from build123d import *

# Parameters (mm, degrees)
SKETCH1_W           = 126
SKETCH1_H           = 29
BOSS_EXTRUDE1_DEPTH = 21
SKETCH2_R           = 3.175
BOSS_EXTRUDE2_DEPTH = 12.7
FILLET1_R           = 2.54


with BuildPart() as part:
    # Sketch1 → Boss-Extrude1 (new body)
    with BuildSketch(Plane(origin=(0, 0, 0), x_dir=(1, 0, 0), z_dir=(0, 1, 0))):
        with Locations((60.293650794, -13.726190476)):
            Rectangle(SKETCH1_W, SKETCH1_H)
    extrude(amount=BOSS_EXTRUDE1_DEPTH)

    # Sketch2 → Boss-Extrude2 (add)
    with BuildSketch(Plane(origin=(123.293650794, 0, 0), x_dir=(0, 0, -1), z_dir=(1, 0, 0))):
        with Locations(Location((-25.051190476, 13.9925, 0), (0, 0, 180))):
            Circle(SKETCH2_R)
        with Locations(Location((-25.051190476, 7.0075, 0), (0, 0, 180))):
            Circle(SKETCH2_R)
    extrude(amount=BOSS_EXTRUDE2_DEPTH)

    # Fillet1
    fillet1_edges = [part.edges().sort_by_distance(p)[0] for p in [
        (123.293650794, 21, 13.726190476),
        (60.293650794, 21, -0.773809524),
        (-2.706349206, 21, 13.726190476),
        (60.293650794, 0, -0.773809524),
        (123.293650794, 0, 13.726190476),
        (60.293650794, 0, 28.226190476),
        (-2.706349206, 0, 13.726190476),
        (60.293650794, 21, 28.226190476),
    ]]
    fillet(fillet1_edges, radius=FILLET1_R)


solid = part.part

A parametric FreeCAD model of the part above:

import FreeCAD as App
import Part
import Sketcher


def edges_at(feature, points):
    """Names of the edges that pass closest to the given points."""
    edges = feature.Shape.Edges
    near = lambda p: min(range(len(edges)), key=lambda i: edges[i].distToShape(Part.Vertex(*p))[0])
    return sorted({f"Edge{near(p) + 1}" for p in points})


def add_polygon(sketch, points):
    """Adds a closed chain of lines whose ends are joined by coincident constraints."""
    first, n = sketch.GeometryCount, len(points)
    for a, b in zip(points, points[1:] + points[:1]):
        sketch.addGeometry(Part.LineSegment(App.Vector(*a, 0), App.Vector(*b, 0)), False)
    for i in range(n):
        sketch.addConstraint(Sketcher.Constraint("Coincident", first + i, 2, first + (i + 1) % n, 1))

doc = App.newDocument("Part")
params = doc.addObject("Spreadsheet::Sheet", "Params")
for row, (alias, value) in enumerate([
    ("sketch1_width", "126 mm"),
    ("sketch1_height", "29 mm"),
    ("pad1_length", "21 mm"),
    ("sketch2_diameter", "6.35 mm"),
    ("pad2_length", "12.7 mm"),
    ("fillet_radius", "2.54 mm"),
], start=1):
    params.set(f"A{row}", alias)
    params.set(f"B{row}", "=" + value)
    params.setAlias(f"B{row}", alias)

body = doc.addObject("PartDesign::Body", "Body")

sketch1 = body.newObject("Sketcher::SketchObject", "Sketch")
sketch1.AttachmentSupport = (doc.getObject("XZ_Plane"), [""])
sketch1.MapMode = "FlatFace"
add_polygon(sketch1, [(-3, -1), (-3, 28), (123, 28), (123, -1)])
sketch1.addConstraint([
    Sketcher.Constraint("Vertical", 0),
    Sketcher.Constraint("Horizontal", 1),
    Sketcher.Constraint("Vertical", 2),
    Sketcher.Constraint("Horizontal", 3),
    Sketcher.Constraint("DistanceX", 1, 1, 1, 2, 126.0),
    Sketcher.Constraint("DistanceY", 0, 1, 0, 2, 29.0),
    Sketcher.Constraint("DistanceX", 0, 2, -1, 1, 2.706349),
    Sketcher.Constraint("DistanceY", -1, 1, 0, 2, 28.22619),
])
sketch1.setExpression("Constraints[8]", "Params.sketch1_width")
sketch1.setExpression("Constraints[9]", "Params.sketch1_height")
pad1 = body.newObject("PartDesign::Pad", "Pad")
pad1.Profile = sketch1
pad1.setExpression("Length", "Params.pad1_length")
pad1.Reversed = True

sketch2 = body.newObject("Sketcher::SketchObject", "Sketch001")
sketch2.AttachmentSupport = (doc.getObject("YZ_Plane"), [""])
sketch2.MapMode = "FlatFace"
sketch2.AttachmentOffset = App.Placement(App.Vector(0, 0, 123.293651), App.Rotation())
sketch2.addGeometry([
    Part.Circle(App.Vector(14, 25.1, 0), App.Vector(0, 0, 1), 3.2),
    Part.Circle(App.Vector(7, 25.1, 0), App.Vector(0, 0, 1), 3.2),
], False)
sketch2.addConstraint([
    Sketcher.Constraint("Equal", 0, 1),
    Sketcher.Constraint("Horizontal", 0, 3, 1, 3),
    Sketcher.Constraint("Diameter", 0, 6.35),
    Sketcher.Constraint("DistanceX", 1, 3, 0, 3, 6.985),
    Sketcher.Constraint("DistanceX", -1, 1, 0, 3, 13.9925),
    Sketcher.Constraint("DistanceY", -1, 1, 0, 3, 25.05119),
])
sketch2.setExpression("Constraints[2]", "Params.sketch2_diameter")
pad2 = body.newObject("PartDesign::Pad", "Pad001")
pad2.Profile = sketch2
pad2.setExpression("Length", "Params.pad2_length")
doc.recompute()

fillet = body.newObject("PartDesign::Fillet", "Fillet")
fillet.Base = (pad2, edges_at(pad2, [
    (123.294, 21, 13.726),
    (60.294, 21, -0.774),
    (-2.706, 21, 13.726),
    (60.294, 0, -0.774),
    (123.294, 0, 13.726),
    (60.294, 0, 28.226),
    (-2.706, 0, 13.726),
    (60.294, 21, 28.226),
]))
fillet.setExpression("Radius", "Params.fillet_radius")

doc.recompute()
